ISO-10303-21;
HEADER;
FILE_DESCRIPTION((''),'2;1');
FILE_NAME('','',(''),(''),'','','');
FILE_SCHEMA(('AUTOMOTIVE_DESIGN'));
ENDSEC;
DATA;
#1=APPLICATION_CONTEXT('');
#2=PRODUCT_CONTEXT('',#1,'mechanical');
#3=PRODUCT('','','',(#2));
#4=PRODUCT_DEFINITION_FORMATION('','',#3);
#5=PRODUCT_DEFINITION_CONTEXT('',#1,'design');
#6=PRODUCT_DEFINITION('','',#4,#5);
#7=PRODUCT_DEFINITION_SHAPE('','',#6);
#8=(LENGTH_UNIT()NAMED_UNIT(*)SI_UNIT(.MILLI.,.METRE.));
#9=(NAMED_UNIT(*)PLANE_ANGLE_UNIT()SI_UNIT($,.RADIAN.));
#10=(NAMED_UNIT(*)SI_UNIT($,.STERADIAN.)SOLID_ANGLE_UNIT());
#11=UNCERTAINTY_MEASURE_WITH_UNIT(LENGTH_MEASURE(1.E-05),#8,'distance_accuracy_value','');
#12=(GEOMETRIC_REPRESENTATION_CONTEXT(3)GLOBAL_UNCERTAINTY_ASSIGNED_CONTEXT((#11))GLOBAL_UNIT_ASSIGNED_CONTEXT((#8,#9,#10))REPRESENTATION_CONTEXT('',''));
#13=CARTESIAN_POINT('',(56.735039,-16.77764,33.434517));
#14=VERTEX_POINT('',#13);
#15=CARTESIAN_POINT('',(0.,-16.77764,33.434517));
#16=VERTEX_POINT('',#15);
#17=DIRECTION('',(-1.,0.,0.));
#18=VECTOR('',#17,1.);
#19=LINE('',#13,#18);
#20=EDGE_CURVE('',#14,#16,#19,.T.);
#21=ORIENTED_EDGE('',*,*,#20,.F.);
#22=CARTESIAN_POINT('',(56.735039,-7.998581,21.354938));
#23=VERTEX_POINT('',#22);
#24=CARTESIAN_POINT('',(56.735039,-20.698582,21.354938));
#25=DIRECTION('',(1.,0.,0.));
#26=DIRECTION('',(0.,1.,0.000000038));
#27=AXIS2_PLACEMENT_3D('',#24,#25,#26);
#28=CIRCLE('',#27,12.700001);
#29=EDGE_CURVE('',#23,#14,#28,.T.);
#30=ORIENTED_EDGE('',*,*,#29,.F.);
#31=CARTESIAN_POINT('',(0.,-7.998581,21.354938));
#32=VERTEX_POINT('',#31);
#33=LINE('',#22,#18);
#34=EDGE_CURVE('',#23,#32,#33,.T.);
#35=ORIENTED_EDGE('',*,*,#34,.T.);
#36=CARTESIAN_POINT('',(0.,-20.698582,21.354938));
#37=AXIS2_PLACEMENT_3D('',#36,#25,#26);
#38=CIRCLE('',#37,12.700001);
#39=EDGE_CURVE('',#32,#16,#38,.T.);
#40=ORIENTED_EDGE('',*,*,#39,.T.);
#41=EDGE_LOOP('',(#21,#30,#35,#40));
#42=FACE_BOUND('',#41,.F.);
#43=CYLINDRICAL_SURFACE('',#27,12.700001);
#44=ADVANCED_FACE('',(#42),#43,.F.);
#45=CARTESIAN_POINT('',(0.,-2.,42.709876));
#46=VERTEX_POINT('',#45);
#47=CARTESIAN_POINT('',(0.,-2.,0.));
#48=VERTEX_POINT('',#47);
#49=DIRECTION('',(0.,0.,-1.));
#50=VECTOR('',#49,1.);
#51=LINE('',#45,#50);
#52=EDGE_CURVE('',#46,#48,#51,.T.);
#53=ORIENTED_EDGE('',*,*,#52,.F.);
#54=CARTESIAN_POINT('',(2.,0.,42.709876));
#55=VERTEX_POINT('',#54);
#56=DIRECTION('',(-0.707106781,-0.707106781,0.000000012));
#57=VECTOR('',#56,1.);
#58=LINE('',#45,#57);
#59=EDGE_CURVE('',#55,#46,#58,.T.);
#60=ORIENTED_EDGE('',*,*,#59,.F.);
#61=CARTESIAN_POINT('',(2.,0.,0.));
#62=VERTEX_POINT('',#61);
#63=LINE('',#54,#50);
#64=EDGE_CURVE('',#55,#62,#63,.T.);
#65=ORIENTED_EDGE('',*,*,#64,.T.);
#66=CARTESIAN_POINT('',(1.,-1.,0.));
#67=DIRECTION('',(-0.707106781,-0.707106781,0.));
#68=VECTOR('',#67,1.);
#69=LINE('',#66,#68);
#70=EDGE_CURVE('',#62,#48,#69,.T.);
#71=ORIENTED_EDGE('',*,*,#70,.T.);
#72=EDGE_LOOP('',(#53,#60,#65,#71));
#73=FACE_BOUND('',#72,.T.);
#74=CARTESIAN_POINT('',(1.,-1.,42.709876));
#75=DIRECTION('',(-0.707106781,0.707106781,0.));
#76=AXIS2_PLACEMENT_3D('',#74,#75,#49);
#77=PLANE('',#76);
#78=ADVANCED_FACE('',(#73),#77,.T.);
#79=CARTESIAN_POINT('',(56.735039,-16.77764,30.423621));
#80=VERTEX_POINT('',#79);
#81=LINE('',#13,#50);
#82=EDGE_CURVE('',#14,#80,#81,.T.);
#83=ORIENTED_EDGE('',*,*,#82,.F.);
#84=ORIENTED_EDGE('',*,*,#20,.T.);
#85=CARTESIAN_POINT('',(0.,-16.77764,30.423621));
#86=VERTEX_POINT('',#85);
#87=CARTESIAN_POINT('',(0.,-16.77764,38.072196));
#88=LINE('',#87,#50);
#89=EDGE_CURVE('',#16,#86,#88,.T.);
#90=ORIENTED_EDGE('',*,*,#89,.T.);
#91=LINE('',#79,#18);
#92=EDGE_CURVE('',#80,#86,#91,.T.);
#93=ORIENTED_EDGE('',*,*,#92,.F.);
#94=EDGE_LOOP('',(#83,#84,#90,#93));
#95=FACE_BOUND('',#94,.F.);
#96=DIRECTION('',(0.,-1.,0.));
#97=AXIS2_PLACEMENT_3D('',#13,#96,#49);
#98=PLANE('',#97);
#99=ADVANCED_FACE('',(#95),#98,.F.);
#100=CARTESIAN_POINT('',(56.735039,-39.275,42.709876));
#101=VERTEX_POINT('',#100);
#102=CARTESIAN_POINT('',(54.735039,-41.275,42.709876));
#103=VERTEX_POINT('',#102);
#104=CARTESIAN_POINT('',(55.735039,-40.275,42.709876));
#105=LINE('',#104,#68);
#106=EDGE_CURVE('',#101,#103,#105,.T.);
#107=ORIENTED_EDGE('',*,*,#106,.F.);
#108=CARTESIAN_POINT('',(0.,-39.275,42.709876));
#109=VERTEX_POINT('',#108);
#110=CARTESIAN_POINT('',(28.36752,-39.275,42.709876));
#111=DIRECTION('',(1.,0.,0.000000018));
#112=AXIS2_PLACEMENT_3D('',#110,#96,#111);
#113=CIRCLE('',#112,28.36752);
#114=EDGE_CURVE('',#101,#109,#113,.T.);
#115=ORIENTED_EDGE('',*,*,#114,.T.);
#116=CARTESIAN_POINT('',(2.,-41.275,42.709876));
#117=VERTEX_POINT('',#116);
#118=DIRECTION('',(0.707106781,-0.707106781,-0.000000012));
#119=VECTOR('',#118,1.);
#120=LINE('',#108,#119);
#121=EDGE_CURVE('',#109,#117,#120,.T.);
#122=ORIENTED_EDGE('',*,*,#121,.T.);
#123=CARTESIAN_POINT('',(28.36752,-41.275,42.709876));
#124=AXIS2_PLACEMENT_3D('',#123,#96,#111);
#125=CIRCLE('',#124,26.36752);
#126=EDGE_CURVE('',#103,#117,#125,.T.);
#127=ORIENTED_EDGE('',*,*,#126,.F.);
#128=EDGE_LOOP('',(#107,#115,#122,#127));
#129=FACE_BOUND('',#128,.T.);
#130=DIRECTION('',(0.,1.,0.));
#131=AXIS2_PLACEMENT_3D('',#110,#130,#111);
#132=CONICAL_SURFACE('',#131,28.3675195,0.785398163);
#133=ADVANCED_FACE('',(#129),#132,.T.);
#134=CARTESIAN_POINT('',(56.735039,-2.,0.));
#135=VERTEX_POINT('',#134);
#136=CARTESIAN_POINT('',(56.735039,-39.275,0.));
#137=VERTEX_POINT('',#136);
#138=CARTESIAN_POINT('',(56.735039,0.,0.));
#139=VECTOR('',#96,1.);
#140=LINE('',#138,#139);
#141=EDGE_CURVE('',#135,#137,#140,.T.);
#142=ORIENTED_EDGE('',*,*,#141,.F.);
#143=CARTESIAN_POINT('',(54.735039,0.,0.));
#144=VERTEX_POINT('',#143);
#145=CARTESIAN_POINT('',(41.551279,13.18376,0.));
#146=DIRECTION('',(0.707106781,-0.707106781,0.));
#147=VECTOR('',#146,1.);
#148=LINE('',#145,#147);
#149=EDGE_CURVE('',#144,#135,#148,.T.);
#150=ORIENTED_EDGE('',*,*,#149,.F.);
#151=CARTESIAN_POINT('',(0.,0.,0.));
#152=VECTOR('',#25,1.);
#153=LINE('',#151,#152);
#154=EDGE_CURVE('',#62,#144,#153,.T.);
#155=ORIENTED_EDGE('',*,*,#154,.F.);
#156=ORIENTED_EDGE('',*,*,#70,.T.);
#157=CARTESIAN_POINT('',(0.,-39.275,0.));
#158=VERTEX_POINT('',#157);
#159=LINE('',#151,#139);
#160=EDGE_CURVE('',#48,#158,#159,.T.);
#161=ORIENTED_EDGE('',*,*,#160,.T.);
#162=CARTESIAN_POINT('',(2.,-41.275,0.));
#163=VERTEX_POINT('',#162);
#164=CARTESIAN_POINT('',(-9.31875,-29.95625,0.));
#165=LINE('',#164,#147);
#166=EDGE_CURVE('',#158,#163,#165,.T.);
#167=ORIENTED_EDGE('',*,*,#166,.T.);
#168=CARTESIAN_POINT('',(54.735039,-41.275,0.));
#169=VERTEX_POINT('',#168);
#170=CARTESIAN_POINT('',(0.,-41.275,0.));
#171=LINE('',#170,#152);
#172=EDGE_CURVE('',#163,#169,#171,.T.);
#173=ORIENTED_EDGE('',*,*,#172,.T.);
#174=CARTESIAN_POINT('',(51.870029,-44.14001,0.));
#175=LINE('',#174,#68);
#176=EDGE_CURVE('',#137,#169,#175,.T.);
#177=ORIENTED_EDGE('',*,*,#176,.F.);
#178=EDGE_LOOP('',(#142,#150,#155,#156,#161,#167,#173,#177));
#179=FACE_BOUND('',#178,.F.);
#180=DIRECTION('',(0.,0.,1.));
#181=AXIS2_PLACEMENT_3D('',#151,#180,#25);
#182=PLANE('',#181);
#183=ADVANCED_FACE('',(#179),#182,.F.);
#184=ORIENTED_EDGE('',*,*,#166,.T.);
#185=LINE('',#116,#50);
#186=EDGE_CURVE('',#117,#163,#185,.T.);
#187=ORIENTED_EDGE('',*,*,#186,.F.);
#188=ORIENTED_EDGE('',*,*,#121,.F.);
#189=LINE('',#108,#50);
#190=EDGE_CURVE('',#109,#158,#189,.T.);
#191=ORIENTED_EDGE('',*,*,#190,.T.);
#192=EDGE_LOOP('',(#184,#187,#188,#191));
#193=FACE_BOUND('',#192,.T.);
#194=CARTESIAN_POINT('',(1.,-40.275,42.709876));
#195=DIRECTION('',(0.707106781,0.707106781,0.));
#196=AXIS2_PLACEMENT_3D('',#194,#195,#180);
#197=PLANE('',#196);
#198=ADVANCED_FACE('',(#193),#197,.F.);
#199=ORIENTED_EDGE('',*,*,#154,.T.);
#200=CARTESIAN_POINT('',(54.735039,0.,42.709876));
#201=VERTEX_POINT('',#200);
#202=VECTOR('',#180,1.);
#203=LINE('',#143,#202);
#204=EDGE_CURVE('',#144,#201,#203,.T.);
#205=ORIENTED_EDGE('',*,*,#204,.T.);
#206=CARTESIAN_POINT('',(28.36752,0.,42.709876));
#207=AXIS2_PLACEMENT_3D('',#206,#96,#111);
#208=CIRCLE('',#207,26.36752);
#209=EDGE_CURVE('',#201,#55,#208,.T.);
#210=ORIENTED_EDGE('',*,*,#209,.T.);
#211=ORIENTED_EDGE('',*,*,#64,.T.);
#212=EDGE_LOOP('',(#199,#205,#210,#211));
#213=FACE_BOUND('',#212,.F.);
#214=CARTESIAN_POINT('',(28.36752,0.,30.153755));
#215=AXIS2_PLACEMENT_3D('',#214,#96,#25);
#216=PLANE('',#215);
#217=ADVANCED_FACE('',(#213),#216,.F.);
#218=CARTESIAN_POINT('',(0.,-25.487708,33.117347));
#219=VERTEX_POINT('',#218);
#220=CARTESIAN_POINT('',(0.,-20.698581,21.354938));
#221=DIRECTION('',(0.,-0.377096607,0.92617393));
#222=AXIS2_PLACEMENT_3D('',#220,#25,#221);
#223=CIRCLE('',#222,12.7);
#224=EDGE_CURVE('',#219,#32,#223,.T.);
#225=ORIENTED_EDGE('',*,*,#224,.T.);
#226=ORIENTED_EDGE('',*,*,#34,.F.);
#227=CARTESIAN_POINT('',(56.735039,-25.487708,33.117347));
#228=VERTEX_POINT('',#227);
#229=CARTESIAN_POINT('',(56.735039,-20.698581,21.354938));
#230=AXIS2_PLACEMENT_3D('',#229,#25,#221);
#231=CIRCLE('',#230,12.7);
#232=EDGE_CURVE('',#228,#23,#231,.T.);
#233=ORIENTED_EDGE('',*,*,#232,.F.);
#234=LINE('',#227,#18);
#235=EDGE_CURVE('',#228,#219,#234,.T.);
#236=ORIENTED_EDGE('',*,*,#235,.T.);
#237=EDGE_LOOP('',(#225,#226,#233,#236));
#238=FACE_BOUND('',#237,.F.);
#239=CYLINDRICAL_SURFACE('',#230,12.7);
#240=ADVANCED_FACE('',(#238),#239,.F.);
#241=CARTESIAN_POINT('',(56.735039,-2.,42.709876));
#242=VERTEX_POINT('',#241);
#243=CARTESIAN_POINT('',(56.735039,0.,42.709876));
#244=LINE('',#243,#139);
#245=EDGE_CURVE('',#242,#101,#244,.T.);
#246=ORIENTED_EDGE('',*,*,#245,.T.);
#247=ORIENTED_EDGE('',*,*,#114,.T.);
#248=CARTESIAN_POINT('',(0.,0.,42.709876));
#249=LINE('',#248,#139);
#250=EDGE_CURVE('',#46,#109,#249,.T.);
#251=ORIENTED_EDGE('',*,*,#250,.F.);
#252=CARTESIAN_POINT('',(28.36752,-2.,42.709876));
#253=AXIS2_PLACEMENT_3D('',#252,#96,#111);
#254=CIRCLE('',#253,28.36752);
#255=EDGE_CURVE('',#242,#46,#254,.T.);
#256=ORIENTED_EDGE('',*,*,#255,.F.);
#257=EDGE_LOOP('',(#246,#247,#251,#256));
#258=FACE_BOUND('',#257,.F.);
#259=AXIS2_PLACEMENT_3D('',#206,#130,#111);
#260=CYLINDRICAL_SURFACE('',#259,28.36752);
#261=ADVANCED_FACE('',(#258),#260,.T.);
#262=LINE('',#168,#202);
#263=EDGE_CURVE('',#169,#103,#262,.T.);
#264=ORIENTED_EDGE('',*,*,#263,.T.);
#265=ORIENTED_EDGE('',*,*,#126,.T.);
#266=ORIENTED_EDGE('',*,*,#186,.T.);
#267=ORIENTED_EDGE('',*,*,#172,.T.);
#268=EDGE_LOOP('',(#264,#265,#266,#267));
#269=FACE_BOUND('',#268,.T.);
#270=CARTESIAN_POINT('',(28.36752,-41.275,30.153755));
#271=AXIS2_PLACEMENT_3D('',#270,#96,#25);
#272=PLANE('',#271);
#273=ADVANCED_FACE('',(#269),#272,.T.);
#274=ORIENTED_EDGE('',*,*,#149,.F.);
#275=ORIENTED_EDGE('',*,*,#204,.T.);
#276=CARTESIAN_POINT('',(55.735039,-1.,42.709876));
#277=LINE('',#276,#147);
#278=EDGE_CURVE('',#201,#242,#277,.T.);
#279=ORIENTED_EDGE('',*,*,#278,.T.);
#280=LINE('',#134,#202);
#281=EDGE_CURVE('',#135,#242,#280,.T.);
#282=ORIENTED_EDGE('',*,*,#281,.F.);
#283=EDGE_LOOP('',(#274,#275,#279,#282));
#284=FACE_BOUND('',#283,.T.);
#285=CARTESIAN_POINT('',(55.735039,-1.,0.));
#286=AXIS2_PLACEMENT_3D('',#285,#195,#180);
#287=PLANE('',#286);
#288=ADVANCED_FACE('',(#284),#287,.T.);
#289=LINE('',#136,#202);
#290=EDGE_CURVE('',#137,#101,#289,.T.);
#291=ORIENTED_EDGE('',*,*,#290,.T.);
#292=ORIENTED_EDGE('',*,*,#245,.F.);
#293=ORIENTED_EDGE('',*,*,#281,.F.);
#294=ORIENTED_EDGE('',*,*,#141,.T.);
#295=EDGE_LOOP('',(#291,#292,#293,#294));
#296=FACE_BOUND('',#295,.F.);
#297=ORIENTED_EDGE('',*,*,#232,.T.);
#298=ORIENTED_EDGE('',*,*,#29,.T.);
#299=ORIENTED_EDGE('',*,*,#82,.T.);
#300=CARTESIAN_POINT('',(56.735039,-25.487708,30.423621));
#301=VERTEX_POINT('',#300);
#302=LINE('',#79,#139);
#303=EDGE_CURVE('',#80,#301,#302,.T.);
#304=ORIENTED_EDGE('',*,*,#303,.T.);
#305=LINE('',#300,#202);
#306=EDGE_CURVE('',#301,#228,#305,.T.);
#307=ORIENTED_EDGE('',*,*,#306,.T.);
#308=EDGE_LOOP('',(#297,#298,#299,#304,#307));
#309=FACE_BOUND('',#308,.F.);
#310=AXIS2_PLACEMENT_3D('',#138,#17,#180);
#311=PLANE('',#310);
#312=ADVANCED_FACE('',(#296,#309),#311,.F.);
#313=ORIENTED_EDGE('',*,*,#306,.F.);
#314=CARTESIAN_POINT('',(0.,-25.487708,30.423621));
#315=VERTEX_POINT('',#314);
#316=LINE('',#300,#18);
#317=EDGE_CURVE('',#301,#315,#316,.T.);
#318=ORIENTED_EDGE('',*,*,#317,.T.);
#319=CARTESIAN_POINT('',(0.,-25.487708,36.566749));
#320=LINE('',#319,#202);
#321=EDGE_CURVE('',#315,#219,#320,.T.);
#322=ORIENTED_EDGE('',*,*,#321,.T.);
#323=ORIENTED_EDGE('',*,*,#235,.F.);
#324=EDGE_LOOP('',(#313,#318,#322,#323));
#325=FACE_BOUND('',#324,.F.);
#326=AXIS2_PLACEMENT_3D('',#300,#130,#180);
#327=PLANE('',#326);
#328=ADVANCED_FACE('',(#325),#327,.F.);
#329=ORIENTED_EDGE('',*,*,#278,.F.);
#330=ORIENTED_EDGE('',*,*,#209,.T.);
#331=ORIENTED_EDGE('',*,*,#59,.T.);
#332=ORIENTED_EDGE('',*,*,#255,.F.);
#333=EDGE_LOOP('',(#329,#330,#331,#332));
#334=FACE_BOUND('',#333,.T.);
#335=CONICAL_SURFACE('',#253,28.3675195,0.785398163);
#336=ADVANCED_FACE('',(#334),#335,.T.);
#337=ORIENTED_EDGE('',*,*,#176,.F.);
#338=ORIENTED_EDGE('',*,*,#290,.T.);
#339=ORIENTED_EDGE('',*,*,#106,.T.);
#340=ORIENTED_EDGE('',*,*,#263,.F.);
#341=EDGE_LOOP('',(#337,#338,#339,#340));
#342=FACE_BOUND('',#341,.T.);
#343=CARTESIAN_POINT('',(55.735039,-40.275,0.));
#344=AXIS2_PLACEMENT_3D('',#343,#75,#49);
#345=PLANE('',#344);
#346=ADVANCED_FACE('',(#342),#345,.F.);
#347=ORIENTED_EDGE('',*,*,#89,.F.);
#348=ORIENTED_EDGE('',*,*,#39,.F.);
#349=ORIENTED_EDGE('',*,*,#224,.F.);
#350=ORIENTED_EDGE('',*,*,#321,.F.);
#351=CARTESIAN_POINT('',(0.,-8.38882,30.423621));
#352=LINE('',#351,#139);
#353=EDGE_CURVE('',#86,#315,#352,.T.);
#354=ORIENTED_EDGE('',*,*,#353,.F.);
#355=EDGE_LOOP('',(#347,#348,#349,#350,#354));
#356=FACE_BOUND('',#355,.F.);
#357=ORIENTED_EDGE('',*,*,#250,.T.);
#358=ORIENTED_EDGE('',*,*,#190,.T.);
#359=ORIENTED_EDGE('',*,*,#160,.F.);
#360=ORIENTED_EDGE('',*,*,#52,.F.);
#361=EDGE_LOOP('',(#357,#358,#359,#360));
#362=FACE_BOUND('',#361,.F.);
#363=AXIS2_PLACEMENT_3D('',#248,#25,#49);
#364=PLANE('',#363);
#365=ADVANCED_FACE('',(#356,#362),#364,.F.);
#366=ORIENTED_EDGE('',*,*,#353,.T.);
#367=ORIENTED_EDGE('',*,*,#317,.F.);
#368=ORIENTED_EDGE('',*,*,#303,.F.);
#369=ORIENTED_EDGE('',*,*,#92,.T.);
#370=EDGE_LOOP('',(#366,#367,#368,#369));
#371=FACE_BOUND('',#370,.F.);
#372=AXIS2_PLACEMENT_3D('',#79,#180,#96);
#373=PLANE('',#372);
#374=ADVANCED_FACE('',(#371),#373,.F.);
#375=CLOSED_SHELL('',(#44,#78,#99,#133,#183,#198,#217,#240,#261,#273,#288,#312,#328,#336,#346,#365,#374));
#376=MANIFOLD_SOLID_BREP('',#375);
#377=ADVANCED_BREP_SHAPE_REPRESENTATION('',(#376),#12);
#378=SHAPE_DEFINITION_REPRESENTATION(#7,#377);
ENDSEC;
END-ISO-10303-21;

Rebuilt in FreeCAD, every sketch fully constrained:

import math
import FreeCAD as App
import Part
import Sketcher
Q = App.Units.Quantity


def edges_at(feature, points):
    """Names of the edges that pass closest to the given points."""
    edges = feature.Shape.Edges
    near = lambda p: min(range(len(edges)), key=lambda i: edges[i].distToShape(Part.Vertex(*p))[0])
    return sorted({f"Edge{near(p) + 1}" for p in points})

doc = App.newDocument("Part")
params = doc.addObject("Spreadsheet::Sheet", "Params")
for row, (alias, value) in enumerate([
    ("pad1_length", "1.625 in"),
    ("sketch2_radius", "0.5 in"),
    ("pocket1_length", "2.65 in"),
    ("chamfer_size", "2 mm"),
], start=1):
    params.set(f"A{row}", alias)
    params.set(f"B{row}", "=" + value)
    params.setAlias(f"B{row}", alias)

body = doc.addObject("PartDesign::Body", "Body")

# Sketch on XZ plane
sketch1 = body.newObject("Sketcher::SketchObject", "Sketch")
sketch1.AttachmentSupport = (doc.getObject("XZ_Plane"), [""])
sketch1.MapMode = "FlatFace"
sketch1.addGeometry([
    Part.LineSegment(App.Vector(0, 42.709876, 0), App.Vector(0, 0, 0)),
    Part.LineSegment(App.Vector(0, 0, 0), App.Vector(56.735039, 0, 0)),
    Part.LineSegment(App.Vector(56.735039, 0, 0), App.Vector(56.735039, 42.709876, 0)),
    Part.ArcOfCircle(Part.Circle(App.Vector(28.36752, 42.709876, 0), App.Vector(0, 0, 1), 28.36752), math.radians(0.000001), math.radians(179.999999)),
], False)
sketch1.addConstraint([
    Sketcher.Constraint("Coincident", 0, 2, 1, 1),
    Sketcher.Constraint("Coincident", 1, 2, 2, 1),
    Sketcher.Constraint("Tangent", 2, 2, 3, 1),
    Sketcher.Constraint("Tangent", 3, 2, 0, 1),
    Sketcher.Constraint("Vertical", 0),
    Sketcher.Constraint("Horizontal", 1),
    Sketcher.Constraint("Vertical", 2),
    Sketcher.Constraint("Coincident", 0, 2, -1, 1),
    Sketcher.Constraint("Radius", 3, Q("28.36752 mm")),
    Sketcher.Constraint("DistanceY", 0, 2, 0, 1, Q("42.709876 mm")),
])
pad1 = body.newObject("PartDesign::Pad", "Pad")
pad1.Profile = sketch1
pad1.setExpression("Length", "Params.pad1_length")

# Sketch on YZ plane
sketch2 = body.newObject("Sketcher::SketchObject", "Sketch001")
sketch2.AttachmentSupport = (doc.getObject("YZ_Plane"), [""])
sketch2.MapMode = "FlatFace"
sketch2.AttachmentOffset = App.Placement(App.Vector(0, 0, 56.735039), App.Rotation())
sketch2.addGeometry([
    Part.ArcOfCircle(Part.Circle(App.Vector(-20.698581, 21.354938, 0), App.Vector(0, 0, 1), 12.7), math.radians(112.153955), math.radians(360)),  # 0
    Part.ArcOfCircle(Part.Circle(App.Vector(-20.698582, 21.354938, 0), App.Vector(0, 0, 1), 12.700001), math.radians(0.000002), math.radians(72.016953)),  # 1
    Part.LineSegment(App.Vector(-16.77764, 33.434517, 0), App.Vector(-16.77764, 30.423621, 0)),  # 2
    Part.LineSegment(App.Vector(-16.77764, 30.423621, 0), App.Vector(-25.487708, 30.423621, 0)),  # 3
    Part.LineSegment(App.Vector(-25.487708, 30.423621, 0), App.Vector(-25.487708, 33.117347, 0)),  # 4
], False)
sketch2.addConstraint([
    Sketcher.Constraint("Tangent", 0, 2, 1, 1),
    Sketcher.Constraint("Coincident", 1, 2, 2, 1),
    Sketcher.Constraint("Coincident", 2, 2, 3, 1),
    Sketcher.Constraint("Coincident", 3, 2, 4, 1),
    Sketcher.Constraint("Coincident", 4, 2, 0, 1),
    Sketcher.Constraint("Vertical", 2),
    Sketcher.Constraint("Horizontal", 3),
    Sketcher.Constraint("Vertical", 4),
    Sketcher.Constraint("Equal", 0, 1),
    Sketcher.Constraint("Horizontal", 1, 3, 0, 2),
    Sketcher.Constraint("Radius", 0, Q("0.5 in")),
    Sketcher.Constraint("DistanceX", 3, 2, 3, 1, Q("8.710068 mm")),
    Sketcher.Constraint("DistanceY", 2, 2, 2, 1, Q("3.010896 mm")),
    Sketcher.Constraint("DistanceY", 4, 1, 4, 2, Q("2.693726 mm")),
    Sketcher.Constraint("DistanceX", 0, 3, -1, 1, Q("20.698581 mm")),
    Sketcher.Constraint("DistanceY", -1, 1, 0, 3, Q("21.354938 mm")),
])
sketch2.setExpression("Constraints[10]", "Params.sketch2_radius")
pocket1 = body.newObject("PartDesign::Pocket", "Pocket")
pocket1.Profile = sketch2
pocket1.setExpression("Length", "Params.pocket1_length")
doc.recompute()

chamfer = body.newObject("PartDesign::Chamfer", "Chamfer")
chamfer.Base = (pocket1, edges_at(pocket1, [(28.368, -41.275, 71.077), (56.735, 0, 21.355)]))
chamfer.setExpression("Size", "Params.chamfer_size")

doc.recompute()
